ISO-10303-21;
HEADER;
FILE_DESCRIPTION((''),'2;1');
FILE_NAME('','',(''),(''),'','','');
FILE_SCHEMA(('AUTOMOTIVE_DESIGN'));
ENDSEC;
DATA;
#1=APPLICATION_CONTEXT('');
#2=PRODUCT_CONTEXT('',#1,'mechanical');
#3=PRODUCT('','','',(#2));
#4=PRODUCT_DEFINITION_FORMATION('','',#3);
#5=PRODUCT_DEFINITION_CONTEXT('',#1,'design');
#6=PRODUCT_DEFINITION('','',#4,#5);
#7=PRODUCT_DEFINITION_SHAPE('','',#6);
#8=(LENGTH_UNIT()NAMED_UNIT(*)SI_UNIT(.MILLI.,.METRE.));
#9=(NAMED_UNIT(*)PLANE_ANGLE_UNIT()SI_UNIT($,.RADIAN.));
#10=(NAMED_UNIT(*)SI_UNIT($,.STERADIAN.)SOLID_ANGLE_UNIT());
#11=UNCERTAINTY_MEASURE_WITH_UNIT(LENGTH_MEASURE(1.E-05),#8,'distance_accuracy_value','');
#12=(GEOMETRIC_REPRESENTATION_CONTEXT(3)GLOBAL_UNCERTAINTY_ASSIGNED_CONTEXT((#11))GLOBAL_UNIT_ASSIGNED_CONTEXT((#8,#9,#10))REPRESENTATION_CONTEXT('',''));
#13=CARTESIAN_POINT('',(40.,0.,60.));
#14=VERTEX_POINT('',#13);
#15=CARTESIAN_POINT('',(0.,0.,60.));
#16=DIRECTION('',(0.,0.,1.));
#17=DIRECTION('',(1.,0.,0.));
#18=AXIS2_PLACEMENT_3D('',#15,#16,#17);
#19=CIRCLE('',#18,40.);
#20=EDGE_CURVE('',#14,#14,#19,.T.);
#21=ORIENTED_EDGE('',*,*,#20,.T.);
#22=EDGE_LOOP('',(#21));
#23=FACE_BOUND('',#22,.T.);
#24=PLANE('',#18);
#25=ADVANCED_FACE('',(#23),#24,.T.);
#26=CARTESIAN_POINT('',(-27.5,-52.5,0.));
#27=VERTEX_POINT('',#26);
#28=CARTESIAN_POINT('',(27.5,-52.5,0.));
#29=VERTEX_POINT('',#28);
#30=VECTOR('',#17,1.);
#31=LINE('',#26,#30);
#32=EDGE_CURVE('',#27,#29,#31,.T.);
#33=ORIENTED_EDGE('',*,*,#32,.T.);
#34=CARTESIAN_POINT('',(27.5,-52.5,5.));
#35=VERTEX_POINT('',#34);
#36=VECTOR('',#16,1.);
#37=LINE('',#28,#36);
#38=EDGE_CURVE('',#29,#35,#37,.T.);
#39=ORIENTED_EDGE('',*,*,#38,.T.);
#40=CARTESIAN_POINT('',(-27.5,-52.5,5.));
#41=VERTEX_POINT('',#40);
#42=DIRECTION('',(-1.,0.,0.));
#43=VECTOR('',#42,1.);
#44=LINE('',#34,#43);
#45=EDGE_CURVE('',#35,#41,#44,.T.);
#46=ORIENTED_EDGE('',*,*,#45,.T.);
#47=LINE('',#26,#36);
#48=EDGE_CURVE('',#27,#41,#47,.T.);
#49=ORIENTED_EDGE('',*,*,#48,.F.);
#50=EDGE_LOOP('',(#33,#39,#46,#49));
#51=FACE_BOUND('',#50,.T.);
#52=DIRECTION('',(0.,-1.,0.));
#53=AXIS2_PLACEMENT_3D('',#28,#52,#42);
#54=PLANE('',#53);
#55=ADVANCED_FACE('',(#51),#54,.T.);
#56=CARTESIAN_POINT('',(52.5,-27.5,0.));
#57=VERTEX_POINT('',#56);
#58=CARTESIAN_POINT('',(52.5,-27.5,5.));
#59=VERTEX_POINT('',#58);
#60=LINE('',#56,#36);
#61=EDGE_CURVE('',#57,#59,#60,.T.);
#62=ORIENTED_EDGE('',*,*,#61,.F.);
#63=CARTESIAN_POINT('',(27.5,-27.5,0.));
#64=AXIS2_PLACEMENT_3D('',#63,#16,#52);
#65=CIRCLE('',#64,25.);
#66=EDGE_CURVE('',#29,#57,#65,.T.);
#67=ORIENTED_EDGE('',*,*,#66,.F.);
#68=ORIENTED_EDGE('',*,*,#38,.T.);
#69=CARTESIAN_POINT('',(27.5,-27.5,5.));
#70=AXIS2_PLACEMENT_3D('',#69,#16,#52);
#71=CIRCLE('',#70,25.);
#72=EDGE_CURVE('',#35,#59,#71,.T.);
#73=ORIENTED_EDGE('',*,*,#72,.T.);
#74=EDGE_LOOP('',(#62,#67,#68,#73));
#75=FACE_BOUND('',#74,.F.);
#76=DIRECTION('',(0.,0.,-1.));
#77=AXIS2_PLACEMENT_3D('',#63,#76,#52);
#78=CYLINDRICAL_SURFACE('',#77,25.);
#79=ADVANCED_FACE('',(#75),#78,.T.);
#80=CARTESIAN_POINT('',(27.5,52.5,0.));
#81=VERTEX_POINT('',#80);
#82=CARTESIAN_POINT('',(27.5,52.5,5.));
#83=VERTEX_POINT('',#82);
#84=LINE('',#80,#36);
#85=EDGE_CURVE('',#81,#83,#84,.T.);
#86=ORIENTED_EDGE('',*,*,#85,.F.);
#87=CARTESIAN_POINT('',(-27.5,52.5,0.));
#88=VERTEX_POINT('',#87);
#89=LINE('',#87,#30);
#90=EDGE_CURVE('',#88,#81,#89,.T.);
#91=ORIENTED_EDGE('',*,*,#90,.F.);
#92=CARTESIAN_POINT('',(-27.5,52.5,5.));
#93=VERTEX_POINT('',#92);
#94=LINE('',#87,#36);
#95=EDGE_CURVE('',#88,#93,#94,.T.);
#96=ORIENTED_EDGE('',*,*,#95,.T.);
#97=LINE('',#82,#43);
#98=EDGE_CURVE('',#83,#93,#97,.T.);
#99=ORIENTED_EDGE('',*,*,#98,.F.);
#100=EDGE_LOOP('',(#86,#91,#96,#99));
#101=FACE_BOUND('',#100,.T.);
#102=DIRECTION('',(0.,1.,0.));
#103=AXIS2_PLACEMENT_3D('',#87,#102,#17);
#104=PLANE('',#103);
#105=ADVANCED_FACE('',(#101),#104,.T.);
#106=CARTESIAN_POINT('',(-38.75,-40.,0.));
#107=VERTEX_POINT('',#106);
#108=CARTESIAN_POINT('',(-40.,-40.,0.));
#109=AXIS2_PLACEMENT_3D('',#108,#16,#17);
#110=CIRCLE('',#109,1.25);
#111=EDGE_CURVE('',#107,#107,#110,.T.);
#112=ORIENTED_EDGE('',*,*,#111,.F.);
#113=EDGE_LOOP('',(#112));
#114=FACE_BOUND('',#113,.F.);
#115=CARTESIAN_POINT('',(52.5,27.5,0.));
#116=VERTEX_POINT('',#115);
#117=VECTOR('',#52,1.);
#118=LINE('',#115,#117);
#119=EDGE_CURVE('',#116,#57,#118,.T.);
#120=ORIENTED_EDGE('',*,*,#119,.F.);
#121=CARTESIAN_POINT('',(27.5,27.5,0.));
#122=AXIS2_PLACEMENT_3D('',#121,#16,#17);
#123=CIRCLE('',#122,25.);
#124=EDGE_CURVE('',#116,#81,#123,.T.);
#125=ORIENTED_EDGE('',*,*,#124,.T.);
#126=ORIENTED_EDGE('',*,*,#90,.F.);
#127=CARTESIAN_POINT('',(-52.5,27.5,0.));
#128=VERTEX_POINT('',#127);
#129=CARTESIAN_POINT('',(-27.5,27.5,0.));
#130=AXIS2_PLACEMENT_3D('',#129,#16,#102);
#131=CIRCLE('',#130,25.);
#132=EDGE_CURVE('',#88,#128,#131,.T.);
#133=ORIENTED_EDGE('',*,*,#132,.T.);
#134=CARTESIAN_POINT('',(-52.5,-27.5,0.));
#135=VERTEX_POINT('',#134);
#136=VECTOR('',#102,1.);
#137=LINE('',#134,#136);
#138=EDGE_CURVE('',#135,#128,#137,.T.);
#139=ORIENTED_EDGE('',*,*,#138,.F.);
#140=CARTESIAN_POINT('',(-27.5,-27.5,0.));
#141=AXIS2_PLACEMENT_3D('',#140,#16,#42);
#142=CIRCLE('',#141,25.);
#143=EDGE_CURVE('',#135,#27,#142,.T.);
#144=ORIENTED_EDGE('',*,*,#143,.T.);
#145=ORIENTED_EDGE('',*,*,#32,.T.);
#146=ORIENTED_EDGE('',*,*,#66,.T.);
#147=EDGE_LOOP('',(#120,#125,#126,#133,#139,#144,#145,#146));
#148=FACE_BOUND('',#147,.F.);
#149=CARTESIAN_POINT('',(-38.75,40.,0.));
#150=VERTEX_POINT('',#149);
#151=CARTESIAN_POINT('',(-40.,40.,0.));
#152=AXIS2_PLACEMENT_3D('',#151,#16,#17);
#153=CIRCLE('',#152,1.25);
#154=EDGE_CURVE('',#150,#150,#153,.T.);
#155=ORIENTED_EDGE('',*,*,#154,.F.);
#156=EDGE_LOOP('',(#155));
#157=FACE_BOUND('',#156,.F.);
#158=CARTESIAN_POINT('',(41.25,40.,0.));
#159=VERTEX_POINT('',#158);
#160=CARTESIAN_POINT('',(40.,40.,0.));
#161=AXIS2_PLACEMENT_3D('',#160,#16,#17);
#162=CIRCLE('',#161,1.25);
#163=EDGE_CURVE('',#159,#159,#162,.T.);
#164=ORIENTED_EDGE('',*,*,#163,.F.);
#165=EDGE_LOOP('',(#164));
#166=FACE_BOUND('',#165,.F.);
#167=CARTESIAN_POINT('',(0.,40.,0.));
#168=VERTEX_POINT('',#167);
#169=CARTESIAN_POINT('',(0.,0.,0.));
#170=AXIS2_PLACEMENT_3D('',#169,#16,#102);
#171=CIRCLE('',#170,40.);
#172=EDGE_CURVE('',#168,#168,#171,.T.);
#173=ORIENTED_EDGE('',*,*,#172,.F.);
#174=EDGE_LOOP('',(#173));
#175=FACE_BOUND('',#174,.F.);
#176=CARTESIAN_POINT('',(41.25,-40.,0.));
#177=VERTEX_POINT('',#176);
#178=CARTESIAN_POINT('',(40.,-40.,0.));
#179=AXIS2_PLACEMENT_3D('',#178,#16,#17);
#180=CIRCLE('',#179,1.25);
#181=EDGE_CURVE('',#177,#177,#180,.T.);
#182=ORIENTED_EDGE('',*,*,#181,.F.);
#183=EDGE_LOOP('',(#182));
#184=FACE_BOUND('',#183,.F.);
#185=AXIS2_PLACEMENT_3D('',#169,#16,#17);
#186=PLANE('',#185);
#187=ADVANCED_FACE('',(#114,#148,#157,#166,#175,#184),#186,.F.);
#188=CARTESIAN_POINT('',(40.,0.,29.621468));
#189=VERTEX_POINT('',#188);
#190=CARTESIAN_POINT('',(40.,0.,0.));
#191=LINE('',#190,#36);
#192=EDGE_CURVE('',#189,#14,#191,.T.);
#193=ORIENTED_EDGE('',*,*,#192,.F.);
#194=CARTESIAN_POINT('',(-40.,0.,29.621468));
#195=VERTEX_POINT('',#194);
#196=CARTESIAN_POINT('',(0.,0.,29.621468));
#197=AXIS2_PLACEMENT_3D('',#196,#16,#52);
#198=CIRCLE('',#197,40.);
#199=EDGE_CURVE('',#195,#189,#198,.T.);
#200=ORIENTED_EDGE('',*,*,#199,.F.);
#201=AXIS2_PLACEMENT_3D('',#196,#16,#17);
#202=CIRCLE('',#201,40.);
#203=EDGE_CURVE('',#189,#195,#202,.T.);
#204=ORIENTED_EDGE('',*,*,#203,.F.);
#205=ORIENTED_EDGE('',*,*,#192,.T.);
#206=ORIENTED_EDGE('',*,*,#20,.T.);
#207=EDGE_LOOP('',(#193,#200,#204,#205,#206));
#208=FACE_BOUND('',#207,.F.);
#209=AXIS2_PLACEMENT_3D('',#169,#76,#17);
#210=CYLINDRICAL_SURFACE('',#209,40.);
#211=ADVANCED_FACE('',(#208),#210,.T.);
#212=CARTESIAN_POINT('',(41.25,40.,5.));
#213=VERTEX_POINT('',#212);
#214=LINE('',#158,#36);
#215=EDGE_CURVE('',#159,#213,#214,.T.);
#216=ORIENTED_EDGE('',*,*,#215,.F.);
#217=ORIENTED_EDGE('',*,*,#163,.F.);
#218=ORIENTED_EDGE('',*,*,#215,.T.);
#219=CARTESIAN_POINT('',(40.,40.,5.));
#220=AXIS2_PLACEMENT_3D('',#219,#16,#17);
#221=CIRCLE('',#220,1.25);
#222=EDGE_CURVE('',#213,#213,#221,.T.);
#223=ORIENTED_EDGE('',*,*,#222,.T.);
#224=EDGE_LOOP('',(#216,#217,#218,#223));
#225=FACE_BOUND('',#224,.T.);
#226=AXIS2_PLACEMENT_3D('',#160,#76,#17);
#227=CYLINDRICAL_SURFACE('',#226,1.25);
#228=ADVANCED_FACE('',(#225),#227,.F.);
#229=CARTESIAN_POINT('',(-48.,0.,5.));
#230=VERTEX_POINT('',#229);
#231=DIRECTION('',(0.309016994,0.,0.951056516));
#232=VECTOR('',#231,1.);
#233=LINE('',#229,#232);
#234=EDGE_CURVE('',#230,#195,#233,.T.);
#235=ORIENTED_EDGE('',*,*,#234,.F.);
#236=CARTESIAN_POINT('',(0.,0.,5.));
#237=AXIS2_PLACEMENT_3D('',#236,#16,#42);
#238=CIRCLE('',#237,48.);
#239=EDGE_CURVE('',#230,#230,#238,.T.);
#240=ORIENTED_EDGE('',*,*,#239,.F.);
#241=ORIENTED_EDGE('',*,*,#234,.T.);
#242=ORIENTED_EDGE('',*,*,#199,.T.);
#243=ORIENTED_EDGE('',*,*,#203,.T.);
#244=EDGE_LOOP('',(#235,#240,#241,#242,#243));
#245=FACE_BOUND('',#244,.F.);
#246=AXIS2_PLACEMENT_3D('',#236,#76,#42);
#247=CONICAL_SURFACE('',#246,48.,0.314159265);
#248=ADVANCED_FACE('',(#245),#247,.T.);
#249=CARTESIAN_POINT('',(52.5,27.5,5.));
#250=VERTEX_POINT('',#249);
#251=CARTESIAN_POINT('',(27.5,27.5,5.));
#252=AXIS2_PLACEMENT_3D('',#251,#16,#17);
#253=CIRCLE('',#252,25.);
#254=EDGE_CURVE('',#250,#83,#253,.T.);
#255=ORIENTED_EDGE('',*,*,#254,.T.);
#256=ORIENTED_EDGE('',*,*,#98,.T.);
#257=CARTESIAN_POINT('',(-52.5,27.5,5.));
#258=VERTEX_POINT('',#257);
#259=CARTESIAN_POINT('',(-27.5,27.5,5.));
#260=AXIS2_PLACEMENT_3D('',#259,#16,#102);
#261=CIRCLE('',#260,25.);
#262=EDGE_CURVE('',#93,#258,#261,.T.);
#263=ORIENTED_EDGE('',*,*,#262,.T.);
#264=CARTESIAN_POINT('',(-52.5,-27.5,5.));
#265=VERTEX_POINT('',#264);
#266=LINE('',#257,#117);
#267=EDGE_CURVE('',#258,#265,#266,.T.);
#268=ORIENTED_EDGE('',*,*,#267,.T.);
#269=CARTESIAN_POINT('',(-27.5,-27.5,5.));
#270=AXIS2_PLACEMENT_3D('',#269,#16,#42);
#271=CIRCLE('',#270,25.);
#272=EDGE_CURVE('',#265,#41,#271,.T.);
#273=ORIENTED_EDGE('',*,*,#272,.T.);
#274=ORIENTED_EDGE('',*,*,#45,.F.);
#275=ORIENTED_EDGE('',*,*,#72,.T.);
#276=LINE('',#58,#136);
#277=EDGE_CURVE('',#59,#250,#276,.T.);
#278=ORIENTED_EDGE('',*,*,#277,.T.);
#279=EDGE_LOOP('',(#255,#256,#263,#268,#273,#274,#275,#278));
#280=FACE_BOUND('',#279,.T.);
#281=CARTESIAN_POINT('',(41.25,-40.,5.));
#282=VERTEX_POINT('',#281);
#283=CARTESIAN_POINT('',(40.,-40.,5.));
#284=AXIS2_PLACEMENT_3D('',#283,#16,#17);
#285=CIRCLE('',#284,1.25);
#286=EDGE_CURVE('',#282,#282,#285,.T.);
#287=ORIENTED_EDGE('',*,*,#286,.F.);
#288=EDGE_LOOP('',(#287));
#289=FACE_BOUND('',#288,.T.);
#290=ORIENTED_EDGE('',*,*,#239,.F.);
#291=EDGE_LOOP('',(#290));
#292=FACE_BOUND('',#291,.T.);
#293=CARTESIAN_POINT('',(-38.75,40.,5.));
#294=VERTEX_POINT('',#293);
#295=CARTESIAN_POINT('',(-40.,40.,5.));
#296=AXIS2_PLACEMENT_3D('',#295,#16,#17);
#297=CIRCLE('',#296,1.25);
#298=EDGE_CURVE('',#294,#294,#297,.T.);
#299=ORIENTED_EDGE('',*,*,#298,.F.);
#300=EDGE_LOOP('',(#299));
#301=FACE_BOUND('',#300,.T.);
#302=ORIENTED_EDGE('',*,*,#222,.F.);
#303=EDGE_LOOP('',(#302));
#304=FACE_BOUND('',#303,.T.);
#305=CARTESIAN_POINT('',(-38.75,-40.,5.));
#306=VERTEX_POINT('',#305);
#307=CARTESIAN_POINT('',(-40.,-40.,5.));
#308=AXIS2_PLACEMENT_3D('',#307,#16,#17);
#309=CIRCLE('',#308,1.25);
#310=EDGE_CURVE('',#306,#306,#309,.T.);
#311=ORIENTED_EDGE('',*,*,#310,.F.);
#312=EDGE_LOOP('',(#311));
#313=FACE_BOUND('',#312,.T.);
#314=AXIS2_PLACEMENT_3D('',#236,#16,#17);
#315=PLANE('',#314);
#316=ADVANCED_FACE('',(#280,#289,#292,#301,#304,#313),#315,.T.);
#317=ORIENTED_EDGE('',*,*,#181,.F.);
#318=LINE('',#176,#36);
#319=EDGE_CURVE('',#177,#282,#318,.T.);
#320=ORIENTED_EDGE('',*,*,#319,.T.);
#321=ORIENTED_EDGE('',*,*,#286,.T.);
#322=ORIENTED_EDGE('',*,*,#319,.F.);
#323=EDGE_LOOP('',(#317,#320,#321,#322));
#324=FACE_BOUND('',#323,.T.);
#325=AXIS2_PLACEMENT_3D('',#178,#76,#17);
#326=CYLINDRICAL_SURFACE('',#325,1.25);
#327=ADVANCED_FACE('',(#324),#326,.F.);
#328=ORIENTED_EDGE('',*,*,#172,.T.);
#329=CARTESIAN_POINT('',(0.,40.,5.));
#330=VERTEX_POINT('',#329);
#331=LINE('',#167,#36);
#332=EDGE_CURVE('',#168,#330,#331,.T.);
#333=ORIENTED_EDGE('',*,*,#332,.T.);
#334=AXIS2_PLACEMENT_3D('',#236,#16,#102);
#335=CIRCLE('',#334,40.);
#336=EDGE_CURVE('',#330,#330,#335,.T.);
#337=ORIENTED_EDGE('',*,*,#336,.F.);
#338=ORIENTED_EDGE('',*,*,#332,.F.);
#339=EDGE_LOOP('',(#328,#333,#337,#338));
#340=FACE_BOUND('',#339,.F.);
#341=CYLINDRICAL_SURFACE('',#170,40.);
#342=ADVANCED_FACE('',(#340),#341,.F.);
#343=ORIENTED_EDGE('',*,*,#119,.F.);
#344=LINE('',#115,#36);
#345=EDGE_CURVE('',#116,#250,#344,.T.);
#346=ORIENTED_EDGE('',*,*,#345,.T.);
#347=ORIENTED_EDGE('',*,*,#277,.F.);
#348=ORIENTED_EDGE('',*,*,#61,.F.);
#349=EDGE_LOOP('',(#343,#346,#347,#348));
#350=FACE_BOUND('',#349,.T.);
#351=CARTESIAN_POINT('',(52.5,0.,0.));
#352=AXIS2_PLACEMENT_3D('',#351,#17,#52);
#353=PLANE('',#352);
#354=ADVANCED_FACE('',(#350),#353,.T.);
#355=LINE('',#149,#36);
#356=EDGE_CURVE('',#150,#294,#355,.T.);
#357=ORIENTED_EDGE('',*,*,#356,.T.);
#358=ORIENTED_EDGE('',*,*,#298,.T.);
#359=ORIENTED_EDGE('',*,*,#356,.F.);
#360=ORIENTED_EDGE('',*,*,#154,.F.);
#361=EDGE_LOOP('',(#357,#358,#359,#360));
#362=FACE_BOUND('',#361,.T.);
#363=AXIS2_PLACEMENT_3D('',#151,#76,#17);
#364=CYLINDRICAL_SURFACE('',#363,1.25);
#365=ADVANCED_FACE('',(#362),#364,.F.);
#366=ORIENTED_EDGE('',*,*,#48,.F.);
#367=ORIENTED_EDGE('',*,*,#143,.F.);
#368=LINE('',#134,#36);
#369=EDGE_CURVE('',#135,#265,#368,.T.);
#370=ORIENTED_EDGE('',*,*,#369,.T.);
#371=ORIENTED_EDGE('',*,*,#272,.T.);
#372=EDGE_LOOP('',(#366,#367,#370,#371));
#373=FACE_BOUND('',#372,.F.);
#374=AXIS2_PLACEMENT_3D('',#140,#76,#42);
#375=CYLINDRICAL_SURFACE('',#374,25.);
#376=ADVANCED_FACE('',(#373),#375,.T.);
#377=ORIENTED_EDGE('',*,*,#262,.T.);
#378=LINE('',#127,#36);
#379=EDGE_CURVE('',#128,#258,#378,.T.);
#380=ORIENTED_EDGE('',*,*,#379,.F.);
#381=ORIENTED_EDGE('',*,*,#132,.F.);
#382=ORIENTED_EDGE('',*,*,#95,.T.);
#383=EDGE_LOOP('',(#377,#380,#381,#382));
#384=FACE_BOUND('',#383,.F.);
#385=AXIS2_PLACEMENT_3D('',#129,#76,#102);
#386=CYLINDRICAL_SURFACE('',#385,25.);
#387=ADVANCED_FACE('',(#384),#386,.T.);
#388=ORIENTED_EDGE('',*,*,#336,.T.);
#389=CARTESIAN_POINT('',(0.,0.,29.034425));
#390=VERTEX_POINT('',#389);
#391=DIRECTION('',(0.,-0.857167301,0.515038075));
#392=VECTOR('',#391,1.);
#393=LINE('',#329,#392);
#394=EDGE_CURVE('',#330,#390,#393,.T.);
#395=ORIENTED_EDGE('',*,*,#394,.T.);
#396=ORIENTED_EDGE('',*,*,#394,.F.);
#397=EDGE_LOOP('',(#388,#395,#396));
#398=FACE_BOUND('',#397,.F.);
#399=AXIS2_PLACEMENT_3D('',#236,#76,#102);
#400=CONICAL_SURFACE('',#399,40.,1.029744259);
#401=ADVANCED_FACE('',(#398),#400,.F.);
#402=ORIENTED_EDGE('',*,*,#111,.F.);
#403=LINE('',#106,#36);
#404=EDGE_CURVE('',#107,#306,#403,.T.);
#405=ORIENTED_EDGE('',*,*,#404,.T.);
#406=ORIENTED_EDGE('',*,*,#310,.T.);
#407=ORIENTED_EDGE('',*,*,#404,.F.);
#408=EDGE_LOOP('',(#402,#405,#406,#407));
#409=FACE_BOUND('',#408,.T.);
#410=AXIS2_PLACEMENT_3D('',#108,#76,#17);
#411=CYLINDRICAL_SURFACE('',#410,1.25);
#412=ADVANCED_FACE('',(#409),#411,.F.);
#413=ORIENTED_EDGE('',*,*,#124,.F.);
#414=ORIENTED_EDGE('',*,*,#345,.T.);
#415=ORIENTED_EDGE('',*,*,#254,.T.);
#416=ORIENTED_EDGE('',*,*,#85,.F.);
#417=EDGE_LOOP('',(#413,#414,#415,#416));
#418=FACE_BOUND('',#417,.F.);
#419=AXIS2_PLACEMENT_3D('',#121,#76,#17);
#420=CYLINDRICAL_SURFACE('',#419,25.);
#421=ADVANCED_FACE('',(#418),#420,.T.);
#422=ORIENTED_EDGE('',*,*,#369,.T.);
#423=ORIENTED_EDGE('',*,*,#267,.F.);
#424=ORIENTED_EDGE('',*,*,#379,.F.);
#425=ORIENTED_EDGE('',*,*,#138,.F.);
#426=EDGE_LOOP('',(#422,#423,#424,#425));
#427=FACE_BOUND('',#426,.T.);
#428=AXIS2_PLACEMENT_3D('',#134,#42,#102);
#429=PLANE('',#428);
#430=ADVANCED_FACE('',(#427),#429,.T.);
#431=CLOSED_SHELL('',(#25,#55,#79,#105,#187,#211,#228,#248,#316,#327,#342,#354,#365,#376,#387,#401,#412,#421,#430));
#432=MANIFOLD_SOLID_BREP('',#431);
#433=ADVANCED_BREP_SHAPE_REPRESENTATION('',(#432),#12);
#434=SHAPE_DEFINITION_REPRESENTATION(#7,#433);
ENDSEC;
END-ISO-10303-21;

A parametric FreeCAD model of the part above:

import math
import FreeCAD as App
import Part
import Sketcher
from FreeCAD import Vector
Q = App.Units.Quantity

doc = App.newDocument("Part")
body = doc.addObject("PartDesign::Body", "Body")

# Sketch on XY plane
sketch1 = body.newObject("Sketcher::SketchObject", "Sketch")
sketch1.AttachmentSupport = (doc.getObject("XY_Plane"), [""])
sketch1.MapMode = "FlatFace"
sketch1.addGeometry([
    Part.ArcOfCircle(Part.Circle(Vector(27.5, -27.5, 0), Vector(0, 0, 1), 25), math.radians(-90), math.radians(0)),  # 0
    Part.LineSegment(Vector(52.5, -27.5, 0), Vector(52.5, 27.5, 0)),  # 1
    Part.ArcOfCircle(Part.Circle(Vector(27.5, 27.5, 0), Vector(0, 0, 1), 25), math.radians(0), math.radians(90)),  # 2
    Part.LineSegment(Vector(27.5, 52.5, 0), Vector(-27.5, 52.5, 0)),  # 3
    Part.ArcOfCircle(Part.Circle(Vector(-27.5, 27.5, 0), Vector(0, 0, 1), 25), math.radians(90), math.radians(180)),  # 4
    Part.LineSegment(Vector(-52.5, 27.5, 0), Vector(-52.5, -27.5, 0)),  # 5
    Part.ArcOfCircle(Part.Circle(Vector(-27.5, -27.5, 0), Vector(0, 0, 1), 25), math.radians(180), math.radians(270)),  # 6
    Part.LineSegment(Vector(-27.5, -52.5, 0), Vector(27.5, -52.5, 0)),  # 7
    Part.Circle(Vector(40, -40, 0), Vector(0, 0, 1), 1.2),  # 8
    Part.Circle(Vector(-40, -40, 0), Vector(0, 0, 1), 1.2),  # 9
    Part.Circle(Vector(-40, 40, 0), Vector(0, 0, 1), 1.2),  # 10
    Part.Circle(Vector(40, 40, 0), Vector(0, 0, 1), 1.2),  # 11
], False)
sketch1.addConstraint([
    Sketcher.Constraint("Tangent", 0, 2, 1, 1),
    Sketcher.Constraint("Tangent", 1, 2, 2, 1),
    Sketcher.Constraint("Tangent", 2, 2, 3, 1),
    Sketcher.Constraint("Tangent", 3, 2, 4, 1),
    Sketcher.Constraint("Tangent", 4, 2, 5, 1),
    Sketcher.Constraint("Tangent", 5, 2, 6, 1),
    Sketcher.Constraint("Tangent", 6, 2, 7, 1),
    Sketcher.Constraint("Tangent", 7, 2, 0, 1),
    Sketcher.Constraint("Vertical", 1),
    Sketcher.Constraint("Horizontal", 3),
    Sketcher.Constraint("Vertical", 5),
    Sketcher.Constraint("Horizontal", 7),
    Sketcher.Constraint("Equal", 0, 2),
    Sketcher.Constraint("Equal", 2, 4),
    Sketcher.Constraint("Equal", 4, 6),
    Sketcher.Constraint("Equal", 8, 9),
    Sketcher.Constraint("Equal", 9, 10),
    Sketcher.Constraint("Equal", 10, 11),
    Sketcher.Constraint("Symmetric", 0, 3, 4, 3, -1, 1),
    Sketcher.Constraint("Symmetric", 8, 3, 10, 3, -1, 1),
    Sketcher.Constraint("Symmetric", 9, 3, 11, 3, -1, 1),
    Sketcher.Constraint("Symmetric", 8, 3, 9, 3, -2),
    Sketcher.Constraint("Equal", 7, 1),
    Sketcher.Constraint("Diameter", 8, Q("2.5 mm")),
    Sketcher.Constraint("Radius", 0, Q("25 mm")),
    Sketcher.Constraint("DistanceX", 3, 2, 3, 1, Q("55 mm")),
    Sketcher.Constraint("DistanceX", -1, 1, 8, 3, Q("40 mm")),
    Sketcher.Constraint("DistanceY", 8, 3, -1, 1, Q("40 mm")),
])
pad1 = body.newObject("PartDesign::Pad", "Pad")
pad1.Profile = sketch1
pad1.Length = 5

# Sketch on XY plane
sketch2 = body.newObject("Sketcher::SketchObject", "Sketch001")
sketch2.AttachmentSupport = (doc.getObject("XY_Plane"), [""])
sketch2.MapMode = "FlatFace"
sketch2.AttachmentOffset = App.Placement(Vector(0, 0, 5), App.Rotation())
sketch2.addGeometry(Part.Circle(Vector(0, 0, 0), Vector(0, 0, 1), 48), False)
sketch2.addConstraint([
    Sketcher.Constraint("Coincident", 0, 3, -1, 1),
    Sketcher.Constraint("Diameter", 0, Q("96 mm")),
])
pad2 = body.newObject("PartDesign::Pad", "Pad001")
pad2.Profile = sketch2
pad2.Length = 25
pad2.TaperAngle = -18

# Sketch on XY plane
sketch3 = body.newObject("Sketcher::SketchObject", "Sketch002")
sketch3.AttachmentSupport = (doc.getObject("XY_Plane"), [""])
sketch3.MapMode = "FlatFace"
sketch3.addGeometry(Part.Circle(Vector(0, 0, 0), Vector(0, 0, 1), 40), False)
sketch3.addConstraint([
    Sketcher.Constraint("Coincident", 0, 3, -1, 1),
    Sketcher.Constraint("Diameter", 0, Q("80 mm")),
])
doc.recompute()
hole = body.newObject("PartDesign::Hole", "Hole")
hole.Profile = sketch3
hole.ThreadType = "None"
hole.Diameter = 80
hole.DepthType = "Dimension"
hole.Depth = 60
hole.DrillPoint = "Flat"
hole.Reversed = True

# Sketch on XY plane
sketch4 = body.newObject("Sketcher::SketchObject", "Sketch003")
sketch4.AttachmentSupport = (doc.getObject("XY_Plane"), [""])
sketch4.MapMode = "FlatFace"
sketch4.addGeometry(Part.Circle(Vector(0, 0, 0), Vector(0, 0, 1), 40), False)
sketch4.addConstraint([
    Sketcher.Constraint("Coincident", 0, 3, -1, 1),
    Sketcher.Constraint("Diameter", 0, Q("80 mm")),
])
pad3 = body.newObject("PartDesign::Pad", "Pad002")
pad3.Profile = sketch4
pad3.Length = 60

# Sketch on XY plane
sketch5 = body.newObject("Sketcher::SketchObject", "Sketch004")
sketch5.AttachmentSupport = (doc.getObject("XY_Plane"), [""])
sketch5.MapMode = "FlatFace"
sketch5.addGeometry(Part.Circle(Vector(0, 0, 0), Vector(0, 0, 1), 40), False)
sketch5.addConstraint([
    Sketcher.Constraint("Coincident", 0, 3, -1, 1),
    Sketcher.Constraint("Diameter", 0, Q("80 mm")),
])
doc.recompute()
hole2 = body.newObject("PartDesign::Hole", "Hole001")
hole2.Profile = sketch5
hole2.ThreadType = "None"
hole2.Diameter = 80
hole2.DepthType = "Dimension"
hole2.Depth = 5
hole2.DrillPoint = "Angled"
hole2.DrillPointAngle = 118
hole2.Reversed = True

# Sketch on XY plane
sketch6 = body.newObject("Sketcher::SketchObject", "Sketch005")
sketch6.AttachmentSupport = (doc.getObject("XY_Plane"), [""])
sketch6.MapMode = "FlatFace"
sketch6.addGeometry([
    Part.Circle(Vector(-40, -40, 0), Vector(0, 0, 1), 1.2),
    Part.Circle(Vector(40, -40, 0), Vector(0, 0, 1), 1.2),
    Part.Circle(Vector(-40, 40, 0), Vector(0, 0, 1), 1.2),
    Part.Circle(Vector(40, 40, 0), Vector(0, 0, 1), 1.2),
], False)
sketch6.addConstraint([
    Sketcher.Constraint("Equal", 0, 1),
    Sketcher.Constraint("Equal", 1, 2),
    Sketcher.Constraint("Equal", 2, 3),
    Sketcher.Constraint("Symmetric", 1, 3, 2, 3, -1, 1),
    Sketcher.Constraint("Symmetric", 0, 3, 3, 3, -1, 1),
    Sketcher.Constraint("Symmetric", 0, 3, 1, 3, -2),
    Sketcher.Constraint("Diameter", 0, Q("2.5 mm")),
    Sketcher.Constraint("DistanceX", 0, 3, -1, 1, Q("40 mm")),
    Sketcher.Constraint("DistanceY", 0, 3, -1, 1, Q("40 mm")),
])
pocket1 = body.newObject("PartDesign::Pocket", "Pocket")
pocket1.Profile = sketch6
pocket1.Length = 5
pocket1.Reversed = True

doc.recompute()
